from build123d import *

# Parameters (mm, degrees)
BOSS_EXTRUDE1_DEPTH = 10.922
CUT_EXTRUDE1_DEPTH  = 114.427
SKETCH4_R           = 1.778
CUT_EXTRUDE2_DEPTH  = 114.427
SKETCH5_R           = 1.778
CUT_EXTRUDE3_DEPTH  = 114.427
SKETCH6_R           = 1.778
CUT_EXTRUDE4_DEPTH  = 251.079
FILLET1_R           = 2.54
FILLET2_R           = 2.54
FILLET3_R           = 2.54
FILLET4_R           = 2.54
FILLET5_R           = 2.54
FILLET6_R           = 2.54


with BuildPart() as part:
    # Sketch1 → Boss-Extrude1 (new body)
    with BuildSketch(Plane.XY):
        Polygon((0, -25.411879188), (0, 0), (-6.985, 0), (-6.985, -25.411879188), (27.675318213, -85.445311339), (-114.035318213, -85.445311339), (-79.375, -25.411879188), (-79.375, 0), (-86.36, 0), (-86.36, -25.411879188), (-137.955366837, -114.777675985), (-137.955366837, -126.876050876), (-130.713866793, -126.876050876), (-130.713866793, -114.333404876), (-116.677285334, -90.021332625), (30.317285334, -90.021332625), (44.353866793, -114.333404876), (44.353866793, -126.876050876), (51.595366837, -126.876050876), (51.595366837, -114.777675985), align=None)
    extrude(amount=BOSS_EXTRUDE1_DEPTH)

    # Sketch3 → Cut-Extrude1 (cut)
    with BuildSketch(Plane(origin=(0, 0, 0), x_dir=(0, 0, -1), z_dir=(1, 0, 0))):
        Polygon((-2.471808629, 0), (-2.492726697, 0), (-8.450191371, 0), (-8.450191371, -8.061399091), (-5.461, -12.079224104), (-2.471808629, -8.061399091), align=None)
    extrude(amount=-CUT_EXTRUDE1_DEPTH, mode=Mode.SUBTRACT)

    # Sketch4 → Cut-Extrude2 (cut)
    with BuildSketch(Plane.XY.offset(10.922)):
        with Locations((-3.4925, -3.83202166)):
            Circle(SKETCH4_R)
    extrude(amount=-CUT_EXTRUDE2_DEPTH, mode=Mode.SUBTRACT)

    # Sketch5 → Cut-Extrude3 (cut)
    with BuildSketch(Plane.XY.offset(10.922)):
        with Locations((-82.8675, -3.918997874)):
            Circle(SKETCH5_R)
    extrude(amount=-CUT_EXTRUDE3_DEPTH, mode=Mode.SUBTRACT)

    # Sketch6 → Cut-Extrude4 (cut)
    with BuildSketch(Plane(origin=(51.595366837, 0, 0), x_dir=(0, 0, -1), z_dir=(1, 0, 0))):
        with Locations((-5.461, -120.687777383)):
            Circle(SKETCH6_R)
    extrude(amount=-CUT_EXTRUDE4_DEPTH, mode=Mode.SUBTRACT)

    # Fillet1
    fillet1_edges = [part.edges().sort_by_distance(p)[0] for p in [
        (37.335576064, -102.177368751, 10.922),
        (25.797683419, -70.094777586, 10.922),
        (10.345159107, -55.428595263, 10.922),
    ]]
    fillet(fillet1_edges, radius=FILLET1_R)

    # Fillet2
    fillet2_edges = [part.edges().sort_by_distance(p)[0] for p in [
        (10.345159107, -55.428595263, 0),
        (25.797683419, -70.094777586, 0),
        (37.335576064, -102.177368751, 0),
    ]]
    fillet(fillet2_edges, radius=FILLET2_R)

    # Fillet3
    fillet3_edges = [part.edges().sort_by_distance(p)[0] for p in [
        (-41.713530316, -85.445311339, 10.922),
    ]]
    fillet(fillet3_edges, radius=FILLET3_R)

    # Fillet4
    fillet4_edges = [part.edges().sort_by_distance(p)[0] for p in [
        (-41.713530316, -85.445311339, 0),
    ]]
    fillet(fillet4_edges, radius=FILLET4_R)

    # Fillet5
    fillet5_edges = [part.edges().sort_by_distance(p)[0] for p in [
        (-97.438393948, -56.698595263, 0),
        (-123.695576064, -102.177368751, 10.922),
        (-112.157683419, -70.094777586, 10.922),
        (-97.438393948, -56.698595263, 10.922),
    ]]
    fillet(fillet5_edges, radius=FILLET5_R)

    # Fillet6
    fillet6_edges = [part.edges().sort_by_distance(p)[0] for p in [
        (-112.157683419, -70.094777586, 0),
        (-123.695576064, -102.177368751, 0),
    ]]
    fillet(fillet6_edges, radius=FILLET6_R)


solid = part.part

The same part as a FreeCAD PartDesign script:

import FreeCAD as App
import Part
import Sketcher
Q = App.Units.Quantity


def edges_at(feature, points):
    """Names of the edges that pass closest to the given points."""
    edges = feature.Shape.Edges
    near = lambda p: min(range(len(edges)), key=lambda i: edges[i].distToShape(Part.Vertex(*p))[0])
    return sorted({f"Edge{near(p) + 1}" for p in points})

doc = App.newDocument("Part")
params = doc.addObject("Spreadsheet::Sheet", "Params")
for row, (alias, value) in enumerate([
    ("sketch1_width", "0.275 in"),
    ("pad1_length", "0.43 in"),
    ("pocket1_length", "4.505 in"),
    ("sketch3_diameter", "0.14 in"),
    ("pocket2_length", "4.505 in"),
    ("sketch4_diameter", "0.14 in"),
    ("pocket3_length", "4.505 in"),
    ("sketch5_diameter", "0.14 in"),
    ("pocket4_length", "9.885 in"),
    ("fillet_radius", "0.1 in"),
    ("fillet2_radius", "0.1 in"),
    ("fillet3_radius", "0.1 in"),
    ("fillet4_radius", "0.1 in"),
    ("fillet5_radius", "0.1 in"),
    ("fillet6_radius", "0.1 in"),
], start=1):
    params.set(f"A{row}", alias)
    params.set(f"B{row}", "=" + value)
    params.setAlias(f"B{row}", alias)

body = doc.addObject("PartDesign::Body", "Body")

# Sketch on XY plane
sketch1 = body.newObject("Sketcher::SketchObject", "Sketch")
sketch1.AttachmentSupport = (doc.getObject("XY_Plane"), [""])
sketch1.MapMode = "FlatFace"
sketch1.addGeometry([
    Part.LineSegment(App.Vector(0, -25.411879, 0), App.Vector(0, 0, 0)),  # 0
    Part.LineSegment(App.Vector(0, 0, 0), App.Vector(-6.985, 0, 0)),  # 1
    Part.LineSegment(App.Vector(-6.985, 0, 0), App.Vector(-6.985, -25.411879, 0)),  # 2
    Part.LineSegment(App.Vector(-6.985, -25.411879, 0), App.Vector(27.675318, -85.445311, 0)),  # 3
    Part.LineSegment(App.Vector(27.675318, -85.445311, 0), App.Vector(-114.035318, -85.445311, 0)),  # 4
    Part.LineSegment(App.Vector(-114.035318, -85.445311, 0), App.Vector(-79.375, -25.411879, 0)),  # 5
    Part.LineSegment(App.Vector(-79.375, -25.411879, 0), App.Vector(-79.375, 0, 0)),  # 6
    Part.LineSegment(App.Vector(-79.375, 0, 0), App.Vector(-86.36, 0, 0)),  # 7
    Part.LineSegment(App.Vector(-86.36, 0, 0), App.Vector(-86.36, -25.411879, 0)),  # 8
    Part.LineSegment(App.Vector(-86.36, -25.411879, 0), App.Vector(-137.955367, -114.777676, 0)),  # 9
    Part.LineSegment(App.Vector(-137.955367, -114.777676, 0), App.Vector(-137.955367, -126.876051, 0)),  # 10
    Part.LineSegment(App.Vector(-137.955367, -126.876051, 0), App.Vector(-130.713867, -126.876051, 0)),  # 11
    Part.LineSegment(App.Vector(-130.713867, -126.876051, 0), App.Vector(-130.713867, -114.333405, 0)),  # 12
    Part.LineSegment(App.Vector(-130.713867, -114.333405, 0), App.Vector(-116.677285, -90.021333, 0)),  # 13
    Part.LineSegment(App.Vector(-116.677285, -90.021333, 0), App.Vector(30.317285, -90.021333, 0)),  # 14
    Part.LineSegment(App.Vector(30.317285, -90.021333, 0), App.Vector(44.353867, -114.333405, 0)),  # 15
    Part.LineSegment(App.Vector(44.353867, -114.333405, 0), App.Vector(44.353867, -126.876051, 0)),  # 16
    Part.LineSegment(App.Vector(44.353867, -126.876051, 0), App.Vector(51.595367, -126.876051, 0)),  # 17
    Part.LineSegment(App.Vector(51.595367, -126.876051, 0), App.Vector(51.595367, -114.777676, 0)),  # 18
    Part.LineSegment(App.Vector(51.595367, -114.777676, 0), App.Vector(0, -25.411879, 0)),  # 19
], False)
sketch1.addConstraint([
    Sketcher.Constraint("Coincident", 0, 2, 1, 1),
    Sketcher.Constraint("Coincident", 1, 2, 2, 1),
    Sketcher.Constraint("Coincident", 2, 2, 3, 1),
    Sketcher.Constraint("Coincident", 3, 2, 4, 1),
    Sketcher.Constraint("Coincident", 4, 2, 5, 1),
    Sketcher.Constraint("Coincident", 5, 2, 6, 1),
    Sketcher.Constraint("Coincident", 6, 2, 7, 1),
    Sketcher.Constraint("Coincident", 7, 2, 8, 1),
    Sketcher.Constraint("Coincident", 8, 2, 9, 1),
    Sketcher.Constraint("Coincident", 9, 2, 10, 1),
    Sketcher.Constraint("Coincident", 10, 2, 11, 1),
    Sketcher.Constraint("Coincident", 11, 2, 12, 1),
    Sketcher.Constraint("Coincident", 12, 2, 13, 1),
    Sketcher.Constraint("Coincident", 13, 2, 14, 1),
    Sketcher.Constraint("Coincident", 14, 2, 15, 1),
    Sketcher.Constraint("Coincident", 15, 2, 16, 1),
    Sketcher.Constraint("Coincident", 16, 2, 17, 1),
    Sketcher.Constraint("Coincident", 17, 2, 18, 1),
    Sketcher.Constraint("Coincident", 18, 2, 19, 1),
    Sketcher.Constraint("Coincident", 19, 2, 0, 1),
    Sketcher.Constraint("Vertical", 0),
    Sketcher.Constraint("Horizontal", 1),
    Sketcher.Constraint("Vertical", 2),
    Sketcher.Constraint("Horizontal", 4),
    Sketcher.Constraint("Vertical", 6),
    Sketcher.Constraint("Horizontal", 7),
    Sketcher.Constraint("Vertical", 8),
    Sketcher.Constraint("Vertical", 10),
    Sketcher.Constraint("Horizontal", 11),
    Sketcher.Constraint("Vertical", 12),
    Sketcher.Constraint("Horizontal", 14),
    Sketcher.Constraint("Vertical", 16),
    Sketcher.Constraint("Horizontal", 17),
    Sketcher.Constraint("Vertical", 18),
    Sketcher.Constraint("Coincident", 0, 2, -1, 1),
    Sketcher.Constraint("PointOnObject", 6, 2, -1),
    Sketcher.Constraint("Parallel", 5, 9),
    Sketcher.Constraint("Parallel", 9, 13),
    Sketcher.Constraint("Parallel", 3, 15),
    Sketcher.Constraint("Parallel", 15, 19),
    Sketcher.Constraint("Horizontal", 2, 2, 5, 2),
    Sketcher.Constraint("Horizontal", 5, 2, 8, 2),
    Sketcher.Constraint("Horizontal", 12, 2, 15, 2),
    Sketcher.Constraint("Horizontal", 11, 2, 16, 2),
    Sketcher.Constraint("Horizontal", 9, 2, 18, 2),
    Sketcher.Constraint("Horizontal", 8, 2, 19, 2),
    Sketcher.Constraint("Equal", 1, 7),
    Sketcher.Constraint("Equal", 11, 17),
    Sketcher.Constraint("Equal", 3, 5),
    Sketcher.Constraint("Angle", 3, Q("-60 deg")),
    Sketcher.Constraint("DistanceX", 7, 2, -1, 1, Q("3.4 in")),
    Sketcher.Constraint("DistanceX", 1, 2, 1, 1, Q("0.275 in")),
    Sketcher.Constraint("DistanceX", 11, 1, 11, 2, Q("7.2415 mm")),
    Sketcher.Constraint("DistanceX", 14, 1, 14, 2, Q("146.994571 mm")),
    Sketcher.Constraint("DistanceY", 0, 1, 0, 2, Q("25.411879 mm")),
    Sketcher.Constraint("DistanceX", 4, 2, 4, 1, Q("141.710636 mm")),
    Sketcher.Constraint("DistanceY", 10, 2, 10, 1, Q("12.098375 mm")),
    Sketcher.Constraint("DistanceY", 12, 1, 12, 2, Q("12.542646 mm")),
    Sketcher.Constraint("DistanceY", 10, 2, -1, 1, Q("126.876051 mm")),
])
sketch1.setExpression("Constraints[51]", "Params.sketch1_width")
pad1 = body.newObject("PartDesign::Pad", "Pad")
pad1.Profile = sketch1
pad1.setExpression("Length", "Params.pad1_length")

# Sketch on YZ plane
sketch2 = body.newObject("Sketcher::SketchObject", "Sketch001")
sketch2.AttachmentSupport = (doc.getObject("YZ_Plane"), [""])
sketch2.MapMode = "FlatFace"
sketch2.addGeometry([
    Part.LineSegment(App.Vector(0, 2.471809, 0), App.Vector(0, 8.450191, 0)),  # 0
    Part.LineSegment(App.Vector(0, 8.450191, 0), App.Vector(-8.061399, 8.450191, 0)),  # 1
    Part.LineSegment(App.Vector(-8.061399, 8.450191, 0), App.Vector(-12.079224, 5.461, 0)),  # 2
    Part.LineSegment(App.Vector(-12.079224, 5.461, 0), App.Vector(-8.061399, 2.471809, 0)),  # 3
    Part.LineSegment(App.Vector(-8.061399, 2.471809, 0), App.Vector(0, 2.471809, 0)),  # 4
], False)
sketch2.addConstraint([
    Sketcher.Constraint("Coincident", 0, 2, 1, 1),
    Sketcher.Constraint("Coincident", 1, 2, 2, 1),
    Sketcher.Constraint("Coincident", 2, 2, 3, 1),
    Sketcher.Constraint("Coincident", 3, 2, 4, 1),
    Sketcher.Constraint("Coincident", 4, 2, 0, 1),
    Sketcher.Constraint("Vertical", 0),
    Sketcher.Constraint("Horizontal", 1),
    Sketcher.Constraint("Horizontal", 4),
    Sketcher.Constraint("PointOnObject", 0, 2, -2),
    Sketcher.Constraint("Vertical", 1, 2, 3, 2),
    Sketcher.Constraint("Equal", 2, 3),
    Sketcher.Constraint("DistanceY", -1, 1, 2, 2, Q("0.215 in")),
    Sketcher.Constraint("DistanceX", 1, 2, 1, 1, Q("8.061399 mm")),
    Sketcher.Constraint("DistanceY", 0, 1, 0, 2, Q("5.978383 mm")),
    Sketcher.Constraint("Distance", 2, Q("5.007812 mm")),
])
pocket1 = body.newObject("PartDesign::Pocket", "Pocket")
pocket1.Profile = sketch2
pocket1.setExpression("Length", "Params.pocket1_length")

# Sketch on XY plane
sketch3 = body.newObject("Sketcher::SketchObject", "Sketch002")
sketch3.AttachmentSupport = (doc.getObject("XY_Plane"), [""])
sketch3.MapMode = "FlatFace"
sketch3.AttachmentOffset = App.Placement(App.Vector(0, 0, 0.43 * 25.4), App.Rotation())
sketch3.addGeometry(Part.Circle(App.Vector(-3.4925, -3.832022, 0), App.Vector(0, 0, 1), 1.778), False)
sketch3.addConstraint([
    Sketcher.Constraint("Diameter", 0, Q("0.14 in")),
    Sketcher.Constraint("DistanceX", 0, 3, -1, 1, Q("0.1375 in")),
    Sketcher.Constraint("DistanceY", 0, 3, -1, 1, Q("3.832022 mm")),
])
sketch3.setExpression("Constraints[0]", "Params.sketch3_diameter")
pocket2 = body.newObject("PartDesign::Pocket", "Pocket001")
pocket2.Profile = sketch3
pocket2.setExpression("Length", "Params.pocket2_length")

# Sketch on XY plane
sketch4 = body.newObject("Sketcher::SketchObject", "Sketch003")
sketch4.AttachmentSupport = (doc.getObject("XY_Plane"), [""])
sketch4.MapMode = "FlatFace"
sketch4.AttachmentOffset = App.Placement(App.Vector(0, 0, 0.43 * 25.4), App.Rotation())
sketch4.addGeometry(Part.Circle(App.Vector(-82.8675, -3.918998, 0), App.Vector(0, 0, 1), 1.778), False)
sketch4.addConstraint([
    Sketcher.Constraint("Diameter", 0, Q("0.14 in")),
    Sketcher.Constraint("DistanceX", 0, 3, -1, 1, Q("3.2625 in")),
    Sketcher.Constraint("DistanceY", 0, 3, -1, 1, Q("3.918998 mm")),
])
sketch4.setExpression("Constraints[0]", "Params.sketch4_diameter")
pocket3 = body.newObject("PartDesign::Pocket", "Pocket002")
pocket3.Profile = sketch4
pocket3.setExpression("Length", "Params.pocket3_length")

# Sketch on YZ plane
sketch5 = body.newObject("Sketcher::SketchObject", "Sketch004")
sketch5.AttachmentSupport = (doc.getObject("YZ_Plane"), [""])
sketch5.MapMode = "FlatFace"
sketch5.AttachmentOffset = App.Placement(App.Vector(0, 0, 51.595367), App.Rotation())
sketch5.addGeometry(Part.Circle(App.Vector(-120.687777, 5.461, 0), App.Vector(0, 0, 1), 1.778), False)
sketch5.addConstraint([
    Sketcher.Constraint("Diameter", 0, Q("0.14 in")),
    Sketcher.Constraint("DistanceY", -1, 1, 0, 3, Q("0.215 in")),
    Sketcher.Constraint("DistanceX", 0, 3, -1, 1, Q("120.687777 mm")),
])
sketch5.setExpression("Constraints[0]", "Params.sketch5_diameter")
pocket4 = body.newObject("PartDesign::Pocket", "Pocket003")
pocket4.Profile = sketch5
pocket4.setExpression("Length", "Params.pocket4_length")
doc.recompute()

fillet = body.newObject("PartDesign::Fillet", "Fillet")
fillet.Base = (pocket4, edges_at(pocket4, [(37.336, -102.177, 10.922), (25.798, -70.095, 10.922), (10.345, -55.429, 10.922)]))
fillet.setExpression("Radius", "Params.fillet_radius")
doc.recompute()

fillet2 = body.newObject("PartDesign::Fillet", "Fillet001")
fillet2.Base = (fillet, edges_at(fillet, [(10.345, -55.429, 0), (25.798, -70.095, 0), (37.336, -102.177, 0)]))
fillet2.setExpression("Radius", "Params.fillet2_radius")
doc.recompute()

fillet3 = body.newObject("PartDesign::Fillet", "Fillet002")
fillet3.Base = (fillet2, edges_at(fillet2, [(-41.714, -85.445, 10.922)]))
fillet3.setExpression("Radius", "Params.fillet3_radius")
doc.recompute()

fillet4 = body.newObject("PartDesign::Fillet", "Fillet003")
fillet4.Base = (fillet3, edges_at(fillet3, [(-41.714, -85.445, 0)]))
fillet4.setExpression("Radius", "Params.fillet4_radius")
doc.recompute()

fillet5 = body.newObject("PartDesign::Fillet", "Fillet004")
fillet5.Base = (fillet4, edges_at(fillet4, [
    (-97.438, -56.699, 0),
    (-123.696, -102.177, 10.922),
    (-112.158, -70.095, 10.922),
    (-97.438, -56.699, 10.922),
]))
fillet5.setExpression("Radius", "Params.fillet5_radius")
doc.recompute()

fillet6 = body.newObject("PartDesign::Fillet", "Fillet005")
fillet6.Base = (fillet5, edges_at(fillet5, [(-112.158, -70.095, 0), (-123.696, -102.177, 0)]))
fillet6.setExpression("Radius", "Params.fillet6_radius")

doc.recompute()
